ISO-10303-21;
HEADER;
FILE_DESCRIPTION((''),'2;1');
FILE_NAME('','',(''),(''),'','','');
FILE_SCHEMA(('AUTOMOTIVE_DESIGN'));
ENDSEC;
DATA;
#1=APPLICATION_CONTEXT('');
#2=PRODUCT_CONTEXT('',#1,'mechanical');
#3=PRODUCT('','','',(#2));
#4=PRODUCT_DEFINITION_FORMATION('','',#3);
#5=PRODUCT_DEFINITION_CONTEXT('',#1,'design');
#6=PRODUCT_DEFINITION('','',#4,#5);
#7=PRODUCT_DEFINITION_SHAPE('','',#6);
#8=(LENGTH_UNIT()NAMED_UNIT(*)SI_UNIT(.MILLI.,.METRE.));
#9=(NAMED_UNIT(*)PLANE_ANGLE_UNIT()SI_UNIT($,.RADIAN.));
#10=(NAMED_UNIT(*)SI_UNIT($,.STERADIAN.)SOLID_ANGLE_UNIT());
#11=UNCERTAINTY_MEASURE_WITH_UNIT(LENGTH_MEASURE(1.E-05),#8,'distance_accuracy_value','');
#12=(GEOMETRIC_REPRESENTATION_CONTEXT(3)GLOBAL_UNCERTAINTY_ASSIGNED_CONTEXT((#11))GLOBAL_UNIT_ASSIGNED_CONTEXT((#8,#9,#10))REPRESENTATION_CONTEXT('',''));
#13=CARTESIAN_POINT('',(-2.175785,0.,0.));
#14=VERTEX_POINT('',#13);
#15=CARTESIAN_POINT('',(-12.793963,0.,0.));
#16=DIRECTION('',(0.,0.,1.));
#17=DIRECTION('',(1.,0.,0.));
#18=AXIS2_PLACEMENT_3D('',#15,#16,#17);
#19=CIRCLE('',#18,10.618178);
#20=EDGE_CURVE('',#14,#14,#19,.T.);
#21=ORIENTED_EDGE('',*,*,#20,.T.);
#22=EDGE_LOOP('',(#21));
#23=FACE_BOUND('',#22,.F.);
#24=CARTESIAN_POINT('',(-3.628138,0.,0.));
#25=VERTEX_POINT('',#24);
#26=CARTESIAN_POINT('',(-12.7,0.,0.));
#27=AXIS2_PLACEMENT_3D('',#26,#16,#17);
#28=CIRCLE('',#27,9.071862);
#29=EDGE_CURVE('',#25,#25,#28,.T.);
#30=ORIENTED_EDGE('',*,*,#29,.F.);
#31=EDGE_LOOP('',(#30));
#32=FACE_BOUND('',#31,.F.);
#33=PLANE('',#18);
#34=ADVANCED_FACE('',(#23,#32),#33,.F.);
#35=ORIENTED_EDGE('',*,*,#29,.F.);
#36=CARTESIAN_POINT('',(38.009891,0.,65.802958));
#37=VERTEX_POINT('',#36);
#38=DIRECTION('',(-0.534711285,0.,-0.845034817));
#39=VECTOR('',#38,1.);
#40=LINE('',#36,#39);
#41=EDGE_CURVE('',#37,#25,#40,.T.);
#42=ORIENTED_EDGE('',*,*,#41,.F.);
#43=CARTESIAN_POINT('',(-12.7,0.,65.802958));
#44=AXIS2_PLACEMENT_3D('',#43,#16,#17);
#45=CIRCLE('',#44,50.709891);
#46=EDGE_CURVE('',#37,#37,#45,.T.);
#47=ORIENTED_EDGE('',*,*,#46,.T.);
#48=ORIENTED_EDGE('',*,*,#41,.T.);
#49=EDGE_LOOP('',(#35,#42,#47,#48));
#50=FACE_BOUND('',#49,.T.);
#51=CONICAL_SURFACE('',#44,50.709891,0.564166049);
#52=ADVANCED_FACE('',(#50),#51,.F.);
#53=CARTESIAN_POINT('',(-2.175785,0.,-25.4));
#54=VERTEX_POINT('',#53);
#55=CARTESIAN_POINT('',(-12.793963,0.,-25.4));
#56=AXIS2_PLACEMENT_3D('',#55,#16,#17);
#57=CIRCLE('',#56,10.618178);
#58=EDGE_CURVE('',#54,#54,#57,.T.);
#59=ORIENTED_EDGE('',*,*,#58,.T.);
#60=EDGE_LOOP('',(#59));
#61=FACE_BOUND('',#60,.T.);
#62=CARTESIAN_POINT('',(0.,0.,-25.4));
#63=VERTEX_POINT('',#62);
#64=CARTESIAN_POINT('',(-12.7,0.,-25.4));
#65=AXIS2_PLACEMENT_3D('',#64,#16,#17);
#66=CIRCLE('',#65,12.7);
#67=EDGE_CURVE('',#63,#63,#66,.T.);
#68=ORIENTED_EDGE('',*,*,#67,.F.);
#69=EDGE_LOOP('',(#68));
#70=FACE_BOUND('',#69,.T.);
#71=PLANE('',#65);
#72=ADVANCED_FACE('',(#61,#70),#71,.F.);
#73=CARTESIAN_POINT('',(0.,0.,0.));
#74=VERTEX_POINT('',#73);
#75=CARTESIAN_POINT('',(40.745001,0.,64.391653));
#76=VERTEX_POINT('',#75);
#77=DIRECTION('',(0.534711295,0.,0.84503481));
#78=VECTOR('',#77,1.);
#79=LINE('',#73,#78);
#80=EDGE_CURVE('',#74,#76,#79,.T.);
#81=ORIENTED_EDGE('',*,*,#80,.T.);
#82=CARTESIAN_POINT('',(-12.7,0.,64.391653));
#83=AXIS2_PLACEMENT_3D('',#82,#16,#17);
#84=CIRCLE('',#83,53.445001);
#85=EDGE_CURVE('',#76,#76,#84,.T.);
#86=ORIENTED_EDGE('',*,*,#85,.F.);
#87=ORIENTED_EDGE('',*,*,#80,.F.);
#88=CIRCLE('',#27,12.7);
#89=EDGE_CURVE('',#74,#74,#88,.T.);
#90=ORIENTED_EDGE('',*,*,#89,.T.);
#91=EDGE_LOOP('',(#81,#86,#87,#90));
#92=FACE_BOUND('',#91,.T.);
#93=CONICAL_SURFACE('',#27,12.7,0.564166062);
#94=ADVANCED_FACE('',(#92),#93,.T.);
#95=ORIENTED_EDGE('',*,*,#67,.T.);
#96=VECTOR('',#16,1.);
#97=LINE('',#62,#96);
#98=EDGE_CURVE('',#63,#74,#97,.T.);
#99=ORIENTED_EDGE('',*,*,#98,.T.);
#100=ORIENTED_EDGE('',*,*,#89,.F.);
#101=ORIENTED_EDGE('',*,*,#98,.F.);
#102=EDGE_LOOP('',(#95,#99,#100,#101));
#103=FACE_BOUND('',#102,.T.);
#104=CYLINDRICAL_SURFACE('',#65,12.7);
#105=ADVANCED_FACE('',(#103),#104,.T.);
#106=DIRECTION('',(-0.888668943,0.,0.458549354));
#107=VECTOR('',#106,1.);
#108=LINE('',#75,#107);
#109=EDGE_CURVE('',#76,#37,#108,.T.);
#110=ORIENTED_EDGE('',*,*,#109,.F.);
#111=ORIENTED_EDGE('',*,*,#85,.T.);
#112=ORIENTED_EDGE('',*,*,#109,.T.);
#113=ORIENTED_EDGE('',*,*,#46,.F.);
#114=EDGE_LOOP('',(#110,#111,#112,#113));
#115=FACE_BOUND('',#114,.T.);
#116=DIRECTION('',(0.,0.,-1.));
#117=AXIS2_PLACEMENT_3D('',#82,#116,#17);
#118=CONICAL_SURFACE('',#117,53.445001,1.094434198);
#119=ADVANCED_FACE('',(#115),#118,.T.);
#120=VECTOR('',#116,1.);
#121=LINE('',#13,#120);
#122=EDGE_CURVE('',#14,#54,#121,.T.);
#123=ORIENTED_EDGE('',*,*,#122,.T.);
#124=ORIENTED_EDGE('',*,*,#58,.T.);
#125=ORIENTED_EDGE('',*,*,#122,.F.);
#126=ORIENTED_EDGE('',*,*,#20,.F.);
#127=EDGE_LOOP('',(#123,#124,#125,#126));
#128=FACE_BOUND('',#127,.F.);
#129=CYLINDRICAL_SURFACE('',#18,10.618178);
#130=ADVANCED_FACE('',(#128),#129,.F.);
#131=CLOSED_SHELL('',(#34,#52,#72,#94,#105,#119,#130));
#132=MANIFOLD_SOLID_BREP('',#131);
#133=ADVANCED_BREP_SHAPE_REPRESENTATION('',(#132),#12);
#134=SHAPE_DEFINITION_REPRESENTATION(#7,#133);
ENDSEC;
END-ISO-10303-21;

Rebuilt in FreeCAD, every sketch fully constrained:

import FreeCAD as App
import Part
import Sketcher
from FreeCAD import Vector
Q = App.Units.Quantity


def add_polygon(sketch, points):
    """Adds a closed chain of lines whose ends are joined by coincident constraints."""
    first, n = sketch.GeometryCount, len(points)
    for a, b in zip(points, points[1:] + points[:1]):
        sketch.addGeometry(Part.LineSegment(App.Vector(*a, 0), App.Vector(*b, 0)), False)
    for i in range(n):
        sketch.addConstraint(Sketcher.Constraint("Coincident", first + i, 2, first + (i + 1) % n, 1))

doc = App.newDocument("Part")
body = doc.addObject("PartDesign::Body", "Body")

# Sketch on XZ plane
sketch1 = body.newObject("Sketcher::SketchObject", "Sketch")
sketch1.AttachmentSupport = (doc.getObject("XZ_Plane"), [""])
sketch1.MapMode = "FlatFace"
add_polygon(sketch1, [(0, -25.4), (0, 0), (40.745001, 64.391653), (38.009891, 65.802958), (-3.628138, 0), (-12.7, 0), (-12.7, -25.4)])  # lines 0-6
sketch1.addGeometry(Part.LineSegment(Vector(-12.7, -25.4, 0), Vector(-12.7, 65.802958, 0)), True)  # axis
sketch1.addConstraint(Sketcher.Constraint("Vertical", 0))
sketch1.addConstraint(Sketcher.Constraint("Horizontal", 4))
sketch1.addConstraint(Sketcher.Constraint("Vertical", 5))
sketch1.addConstraint(Sketcher.Constraint("Horizontal", 6))
sketch1.addConstraint(Sketcher.Constraint("Vertical", 7))
sketch1.addConstraint(Sketcher.Constraint("Coincident", 0, 2, -1, 1))
sketch1.addConstraint(Sketcher.Constraint("Coincident", 7, 1, 5, 2))
sketch1.addConstraint(Sketcher.Constraint("PointOnObject", 3, 2, -1))
sketch1.addConstraint(Sketcher.Constraint("Parallel", 1, 3))
sketch1.addConstraint(Sketcher.Constraint("Horizontal", 2, 2, 7, 2))
sketch1.addConstraint(Sketcher.Constraint("DistanceY", 0, 1, 0, 2, Q("1 in")))
sketch1.addConstraint(Sketcher.Constraint("Distance", 1, Q("3 in")))
sketch1.addConstraint(Sketcher.Constraint("DistanceX", 6, 1, 6, 2, Q("0.5 in")))
sketch1.addConstraint(Sketcher.Constraint("DistanceX", -1, 1, 1, 2, Q("40.745001 mm")))
sketch1.addConstraint(Sketcher.Constraint("Distance", 2, Q("3.07776 mm")))
sketch1.addConstraint(Sketcher.Constraint("DistanceX", 4, 2, 4, 1, Q("9.071862 mm")))
revolution = body.newObject("PartDesign::Revolution", "Revolution")
revolution.Profile = sketch1
revolution.ReferenceAxis = (sketch1, ["Axis0"])
revolution.Angle = 360

# Sketch on XY plane
sketch2 = body.newObject("Sketcher::SketchObject", "Sketch001")
sketch2.AttachmentSupport = (doc.getObject("XY_Plane"), [""])
sketch2.MapMode = "FlatFace"
sketch2.addGeometry(Part.Circle(Vector(-12.793963, 0, 0), Vector(0, 0, 1), 10.618178), False)
sketch2.addConstraint(Sketcher.Constraint("PointOnObject", 0, 3, -1))
sketch2.addConstraint(Sketcher.Constraint("Diameter", 0, Q("21.236356 mm")))
sketch2.addConstraint(Sketcher.Constraint("DistanceX", 0, 3, -1, 1, Q("12.793963 mm")))
pocket1 = body.newObject("PartDesign::Pocket", "Pocket")
pocket1.Profile = sketch2
pocket1.Length = Q("1 in")

doc.recompute()
